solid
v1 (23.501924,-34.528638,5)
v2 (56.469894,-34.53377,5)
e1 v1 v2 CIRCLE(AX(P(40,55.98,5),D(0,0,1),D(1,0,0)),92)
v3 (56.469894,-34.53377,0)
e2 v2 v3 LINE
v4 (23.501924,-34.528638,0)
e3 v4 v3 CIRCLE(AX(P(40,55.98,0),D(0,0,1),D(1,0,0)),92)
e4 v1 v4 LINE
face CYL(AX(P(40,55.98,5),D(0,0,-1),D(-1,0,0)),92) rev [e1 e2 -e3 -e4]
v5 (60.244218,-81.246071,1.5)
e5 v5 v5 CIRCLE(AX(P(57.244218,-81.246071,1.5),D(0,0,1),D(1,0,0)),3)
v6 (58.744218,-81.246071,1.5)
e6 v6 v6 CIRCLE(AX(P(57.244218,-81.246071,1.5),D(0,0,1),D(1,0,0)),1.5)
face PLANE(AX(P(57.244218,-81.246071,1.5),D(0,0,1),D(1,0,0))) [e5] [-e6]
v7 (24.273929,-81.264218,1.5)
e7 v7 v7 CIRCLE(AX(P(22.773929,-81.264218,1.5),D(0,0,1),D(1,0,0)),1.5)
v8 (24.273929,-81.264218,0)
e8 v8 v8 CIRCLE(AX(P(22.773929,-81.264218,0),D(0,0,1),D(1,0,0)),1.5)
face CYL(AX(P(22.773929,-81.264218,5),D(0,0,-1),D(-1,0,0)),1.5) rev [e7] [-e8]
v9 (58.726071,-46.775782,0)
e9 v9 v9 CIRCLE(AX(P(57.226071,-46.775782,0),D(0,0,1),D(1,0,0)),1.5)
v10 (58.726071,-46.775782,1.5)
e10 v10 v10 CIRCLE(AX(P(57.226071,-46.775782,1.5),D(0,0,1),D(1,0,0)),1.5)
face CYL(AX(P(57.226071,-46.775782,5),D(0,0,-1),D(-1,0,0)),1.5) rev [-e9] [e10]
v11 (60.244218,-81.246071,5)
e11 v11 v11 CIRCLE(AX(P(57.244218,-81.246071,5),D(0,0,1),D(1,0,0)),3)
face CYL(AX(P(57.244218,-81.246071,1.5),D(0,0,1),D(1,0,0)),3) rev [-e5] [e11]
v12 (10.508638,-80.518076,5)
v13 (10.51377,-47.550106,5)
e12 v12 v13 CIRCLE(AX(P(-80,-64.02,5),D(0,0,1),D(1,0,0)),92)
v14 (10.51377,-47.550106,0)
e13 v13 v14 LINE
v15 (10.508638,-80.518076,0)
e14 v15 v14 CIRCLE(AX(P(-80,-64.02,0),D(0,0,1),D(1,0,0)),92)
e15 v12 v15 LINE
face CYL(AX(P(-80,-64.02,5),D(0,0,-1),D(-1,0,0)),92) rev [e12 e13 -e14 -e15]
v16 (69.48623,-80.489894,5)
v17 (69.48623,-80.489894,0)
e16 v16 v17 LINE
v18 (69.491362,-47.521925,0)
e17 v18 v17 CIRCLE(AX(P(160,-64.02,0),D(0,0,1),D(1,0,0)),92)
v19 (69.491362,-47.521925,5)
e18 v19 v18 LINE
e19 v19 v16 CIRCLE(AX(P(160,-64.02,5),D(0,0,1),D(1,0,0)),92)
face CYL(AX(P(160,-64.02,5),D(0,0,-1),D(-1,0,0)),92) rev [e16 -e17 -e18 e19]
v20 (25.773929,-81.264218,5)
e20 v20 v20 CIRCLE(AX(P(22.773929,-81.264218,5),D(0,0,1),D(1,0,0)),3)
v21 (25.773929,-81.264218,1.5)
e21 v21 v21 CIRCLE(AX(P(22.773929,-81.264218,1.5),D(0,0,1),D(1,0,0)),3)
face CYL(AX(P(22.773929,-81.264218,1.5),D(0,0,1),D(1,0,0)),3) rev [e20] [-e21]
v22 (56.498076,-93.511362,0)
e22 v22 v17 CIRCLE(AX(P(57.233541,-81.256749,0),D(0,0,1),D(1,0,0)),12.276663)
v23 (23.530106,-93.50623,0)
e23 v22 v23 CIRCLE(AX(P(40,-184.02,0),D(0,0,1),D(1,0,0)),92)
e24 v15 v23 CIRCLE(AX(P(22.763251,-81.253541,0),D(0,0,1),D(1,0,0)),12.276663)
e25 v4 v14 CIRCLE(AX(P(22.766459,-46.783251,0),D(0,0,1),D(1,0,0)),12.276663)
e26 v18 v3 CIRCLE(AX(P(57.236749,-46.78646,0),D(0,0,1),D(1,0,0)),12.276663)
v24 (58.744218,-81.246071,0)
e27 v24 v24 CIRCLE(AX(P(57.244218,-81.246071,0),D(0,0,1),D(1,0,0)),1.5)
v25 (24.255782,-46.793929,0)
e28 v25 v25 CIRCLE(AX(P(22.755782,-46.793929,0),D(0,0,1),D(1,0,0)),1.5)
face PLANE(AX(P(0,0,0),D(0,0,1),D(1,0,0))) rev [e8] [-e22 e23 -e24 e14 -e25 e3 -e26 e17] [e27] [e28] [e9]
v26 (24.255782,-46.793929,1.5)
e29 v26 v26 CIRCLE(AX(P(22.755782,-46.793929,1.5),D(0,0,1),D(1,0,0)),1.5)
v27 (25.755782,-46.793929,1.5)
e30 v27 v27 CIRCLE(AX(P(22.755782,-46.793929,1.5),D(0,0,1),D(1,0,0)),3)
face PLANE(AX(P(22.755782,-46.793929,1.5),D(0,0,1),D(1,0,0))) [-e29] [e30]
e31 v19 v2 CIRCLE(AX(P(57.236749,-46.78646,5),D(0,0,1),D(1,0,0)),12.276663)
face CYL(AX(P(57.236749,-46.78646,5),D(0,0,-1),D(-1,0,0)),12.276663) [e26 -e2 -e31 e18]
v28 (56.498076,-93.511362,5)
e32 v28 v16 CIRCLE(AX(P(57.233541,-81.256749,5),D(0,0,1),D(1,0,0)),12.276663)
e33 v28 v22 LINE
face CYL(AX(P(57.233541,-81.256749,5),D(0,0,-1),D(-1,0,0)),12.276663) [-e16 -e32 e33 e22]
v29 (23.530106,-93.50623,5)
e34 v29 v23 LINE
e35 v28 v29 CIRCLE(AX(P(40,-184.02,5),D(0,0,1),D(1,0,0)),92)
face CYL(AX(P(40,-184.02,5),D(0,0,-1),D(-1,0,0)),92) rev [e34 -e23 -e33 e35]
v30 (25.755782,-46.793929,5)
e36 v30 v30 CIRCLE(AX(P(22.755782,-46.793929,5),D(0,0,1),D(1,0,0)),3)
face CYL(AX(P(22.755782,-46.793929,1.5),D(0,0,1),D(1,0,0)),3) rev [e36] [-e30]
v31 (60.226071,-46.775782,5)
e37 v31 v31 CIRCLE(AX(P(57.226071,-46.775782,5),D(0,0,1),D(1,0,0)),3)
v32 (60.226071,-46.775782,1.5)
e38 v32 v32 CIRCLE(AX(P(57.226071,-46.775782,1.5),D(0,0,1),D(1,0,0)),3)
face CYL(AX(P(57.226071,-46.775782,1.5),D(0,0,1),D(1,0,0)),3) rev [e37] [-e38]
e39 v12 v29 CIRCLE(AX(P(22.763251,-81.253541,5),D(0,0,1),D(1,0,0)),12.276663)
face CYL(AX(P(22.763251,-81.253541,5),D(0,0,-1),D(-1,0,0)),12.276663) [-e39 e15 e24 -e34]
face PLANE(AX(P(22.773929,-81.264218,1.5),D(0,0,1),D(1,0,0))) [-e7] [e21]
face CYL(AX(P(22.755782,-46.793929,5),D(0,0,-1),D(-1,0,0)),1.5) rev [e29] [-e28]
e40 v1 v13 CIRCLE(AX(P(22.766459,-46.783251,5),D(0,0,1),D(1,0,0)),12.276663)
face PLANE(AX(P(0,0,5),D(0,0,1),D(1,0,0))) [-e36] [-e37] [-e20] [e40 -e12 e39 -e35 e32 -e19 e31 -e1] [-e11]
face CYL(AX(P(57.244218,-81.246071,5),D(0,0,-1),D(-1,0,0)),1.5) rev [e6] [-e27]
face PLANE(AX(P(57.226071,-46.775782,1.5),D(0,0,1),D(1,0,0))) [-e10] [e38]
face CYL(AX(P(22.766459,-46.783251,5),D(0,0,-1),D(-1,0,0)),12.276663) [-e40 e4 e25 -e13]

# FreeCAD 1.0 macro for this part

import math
import FreeCAD as App
import Part
import Sketcher
from FreeCAD import Vector

doc = App.newDocument("Part")
body = doc.addObject("PartDesign::Body", "Body")

sketch1 = body.newObject("Sketcher::SketchObject", "Sketch")
sketch1.AttachmentSupport = (doc.getObject("XY_Plane"), [""])
sketch1.MapMode = "FlatFace"
sketch1.addGeometry([
    Part.ArcOfCircle(Part.Circle(Vector(40, 56, 0), Vector(0, 0, 1), 92), math.radians(-100), math.radians(-80)),
    Part.ArcOfCircle(Part.Circle(Vector(22.8, -46.8, 0), Vector(0, 0, 1), 12.3), math.radians(87), math.radians(184)),
    Part.ArcOfCircle(Part.Circle(Vector(-80, -64, 0), Vector(0, 0, 1), 92), math.radians(-10), math.radians(10)),
    Part.ArcOfCircle(Part.Circle(Vector(22.8, -81.3, 0), Vector(0, 0, 1), 12.3), math.radians(177), math.radians(274)),
    Part.ArcOfCircle(Part.Circle(Vector(40, -184, 0), Vector(0, 0, 1), 92), math.radians(80), math.radians(100)),
    Part.ArcOfCircle(Part.Circle(Vector(57.2, -81.3, 0), Vector(0, 0, 1), 12.3), math.radians(-93), math.radians(4)),
    Part.ArcOfCircle(Part.Circle(Vector(160, -64, 0), Vector(0, 0, 1), 92), math.radians(170), math.radians(190)),
    Part.ArcOfCircle(Part.Circle(Vector(57.2, -46.8, 0), Vector(0, 0, 1), 12.3), math.radians(-3), math.radians(94)),
    Part.Circle(Vector(57.2, -81.2, 0), Vector(0, 0, 1), 1.5),
    Part.Circle(Vector(22.8, -81.3, 0), Vector(0, 0, 1), 1.5),
    Part.Circle(Vector(57.2, -46.8, 0), Vector(0, 0, 1), 1.5),
    Part.Circle(Vector(22.8, -46.8, 0), Vector(0, 0, 1), 1.5),
], False)
sketch1.addConstraint([
    Sketcher.Constraint("Coincident", 0, 1, 1, 1),
    Sketcher.Constraint("Coincident", 1, 2, 2, 2),
    Sketcher.Constraint("Coincident", 2, 1, 3, 1),
    Sketcher.Constraint("Coincident", 3, 2, 4, 2),
    Sketcher.Constraint("Coincident", 4, 1, 5, 1),
    Sketcher.Constraint("Coincident", 5, 2, 6, 2),
    Sketcher.Constraint("Coincident", 6, 1, 7, 1),
    Sketcher.Constraint("Coincident", 7, 2, 0, 2),
    Sketcher.Constraint("Equal", 0, 2),
    Sketcher.Constraint("Equal", 1, 3),
    Sketcher.Constraint("Equal", 2, 4),
    Sketcher.Constraint("Equal", 3, 5),
    Sketcher.Constraint("Equal", 4, 6),
    Sketcher.Constraint("Equal", 5, 7),
    Sketcher.Constraint("Equal", 8, 9),
    Sketcher.Constraint("Equal", 9, 10),
    Sketcher.Constraint("Equal", 10, 11),
    Sketcher.Constraint("Horizontal", 2, 3, 6, 3),
    Sketcher.Constraint("Vertical", 0, 3, 4, 3),
    Sketcher.Constraint("Diameter", 8, 3.0),
    Sketcher.Constraint("Radius", 0, 92.0),
    Sketcher.Constraint("DistanceX", -1, 1, 0, 3, 40.0),
    Sketcher.Constraint("DistanceX", 2, 3, -1, 1, 80.0),
    Sketcher.Constraint("DistanceX", -1, 1, 6, 3, 160.0),
    Sketcher.Constraint("DistanceY", 2, 3, 0, 3, 120.0),
    Sketcher.Constraint("DistanceY", 4, 3, 2, 3, 120.0),
    Sketcher.Constraint("DistanceY", -1, 1, 0, 3, 55.98),
    Sketcher.Constraint("Radius", 1, 12.276663),
    Sketcher.Constraint("DistanceX", -1, 1, 1, 3, 22.766459),
    Sketcher.Constraint("DistanceY", 1, 3, -1, 1, 46.783251),
    Sketcher.Constraint("DistanceX", -1, 1, 3, 3, 22.763251),
    Sketcher.Constraint("DistanceY", 3, 3, -1, 1, 81.253541),
    Sketcher.Constraint("DistanceX", -1, 1, 5, 3, 57.233541),
    Sketcher.Constraint("DistanceY", 5, 3, -1, 1, 81.256749),
    Sketcher.Constraint("DistanceX", -1, 1, 7, 3, 57.236749),
    Sketcher.Constraint("DistanceY", 7, 3, -1, 1, 46.78646),
    Sketcher.Constraint("DistanceX", -1, 1, 8, 3, 57.244218),
    Sketcher.Constraint("DistanceY", 8, 3, -1, 1, 81.246071),
    Sketcher.Constraint("DistanceX", -1, 1, 9, 3, 22.773929),
    Sketcher.Constraint("DistanceY", 9, 3, -1, 1, 81.264218),
    Sketcher.Constraint("DistanceX", -1, 1, 10, 3, 57.226071),
    Sketcher.Constraint("DistanceY", 10, 3, -1, 1, 46.775782),
    Sketcher.Constraint("DistanceX", -1, 1, 11, 3, 22.755782),
    Sketcher.Constraint("DistanceY", 11, 3, -1, 1, 46.793929),
])
pad1 = body.newObject("PartDesign::Pad", "Pad")
pad1.Profile = sketch1
pad1.Length = 5

sketch2 = body.newObject("Sketcher::SketchObject", "Sketch001")
sketch2.AttachmentSupport = (doc.getObject("XY_Plane"), [""])
sketch2.MapMode = "FlatFace"
sketch2.AttachmentOffset = App.Placement(Vector(0, 0, 5), App.Rotation())
sketch2.addGeometry([
    Part.Circle(Vector(22.8, -46.8, 0), Vector(0, 0, 1), 3),
    Part.Circle(Vector(57.2, -46.8, 0), Vector(0, 0, 1), 3),
    Part.Circle(Vector(57.2, -81.2, 0), Vector(0, 0, 1), 3),
    Part.Circle(Vector(22.8, -81.3, 0), Vector(0, 0, 1), 3),
], False)
sketch2.addConstraint([
    Sketcher.Constraint("Equal", 0, 1),
    Sketcher.Constraint("Equal", 1, 2),
    Sketcher.Constraint("Equal", 2, 3),
    Sketcher.Constraint("Diameter", 0, 6.0),
    Sketcher.Constraint("DistanceX", -1, 1, 0, 3, 22.755782),
    Sketcher.Constraint("DistanceY", 0, 3, -1, 1, 46.793929),
    Sketcher.Constraint("DistanceX", -1, 1, 1, 3, 57.226071),
    Sketcher.Constraint("DistanceY", 1, 3, -1, 1, 46.775782),
    Sketcher.Constraint("DistanceX", -1, 1, 2, 3, 57.244218),
    Sketcher.Constraint("DistanceY", 2, 3, -1, 1, 81.246071),
    Sketcher.Constraint("DistanceX", -1, 1, 3, 3, 22.773929),
    Sketcher.Constraint("DistanceY", 3, 3, -1, 1, 81.264218),
])
pocket1 = body.newObject("PartDesign::Pocket", "Pocket")
pocket1.Profile = sketch2
pocket1.Length = 3.5

doc.recompute()
